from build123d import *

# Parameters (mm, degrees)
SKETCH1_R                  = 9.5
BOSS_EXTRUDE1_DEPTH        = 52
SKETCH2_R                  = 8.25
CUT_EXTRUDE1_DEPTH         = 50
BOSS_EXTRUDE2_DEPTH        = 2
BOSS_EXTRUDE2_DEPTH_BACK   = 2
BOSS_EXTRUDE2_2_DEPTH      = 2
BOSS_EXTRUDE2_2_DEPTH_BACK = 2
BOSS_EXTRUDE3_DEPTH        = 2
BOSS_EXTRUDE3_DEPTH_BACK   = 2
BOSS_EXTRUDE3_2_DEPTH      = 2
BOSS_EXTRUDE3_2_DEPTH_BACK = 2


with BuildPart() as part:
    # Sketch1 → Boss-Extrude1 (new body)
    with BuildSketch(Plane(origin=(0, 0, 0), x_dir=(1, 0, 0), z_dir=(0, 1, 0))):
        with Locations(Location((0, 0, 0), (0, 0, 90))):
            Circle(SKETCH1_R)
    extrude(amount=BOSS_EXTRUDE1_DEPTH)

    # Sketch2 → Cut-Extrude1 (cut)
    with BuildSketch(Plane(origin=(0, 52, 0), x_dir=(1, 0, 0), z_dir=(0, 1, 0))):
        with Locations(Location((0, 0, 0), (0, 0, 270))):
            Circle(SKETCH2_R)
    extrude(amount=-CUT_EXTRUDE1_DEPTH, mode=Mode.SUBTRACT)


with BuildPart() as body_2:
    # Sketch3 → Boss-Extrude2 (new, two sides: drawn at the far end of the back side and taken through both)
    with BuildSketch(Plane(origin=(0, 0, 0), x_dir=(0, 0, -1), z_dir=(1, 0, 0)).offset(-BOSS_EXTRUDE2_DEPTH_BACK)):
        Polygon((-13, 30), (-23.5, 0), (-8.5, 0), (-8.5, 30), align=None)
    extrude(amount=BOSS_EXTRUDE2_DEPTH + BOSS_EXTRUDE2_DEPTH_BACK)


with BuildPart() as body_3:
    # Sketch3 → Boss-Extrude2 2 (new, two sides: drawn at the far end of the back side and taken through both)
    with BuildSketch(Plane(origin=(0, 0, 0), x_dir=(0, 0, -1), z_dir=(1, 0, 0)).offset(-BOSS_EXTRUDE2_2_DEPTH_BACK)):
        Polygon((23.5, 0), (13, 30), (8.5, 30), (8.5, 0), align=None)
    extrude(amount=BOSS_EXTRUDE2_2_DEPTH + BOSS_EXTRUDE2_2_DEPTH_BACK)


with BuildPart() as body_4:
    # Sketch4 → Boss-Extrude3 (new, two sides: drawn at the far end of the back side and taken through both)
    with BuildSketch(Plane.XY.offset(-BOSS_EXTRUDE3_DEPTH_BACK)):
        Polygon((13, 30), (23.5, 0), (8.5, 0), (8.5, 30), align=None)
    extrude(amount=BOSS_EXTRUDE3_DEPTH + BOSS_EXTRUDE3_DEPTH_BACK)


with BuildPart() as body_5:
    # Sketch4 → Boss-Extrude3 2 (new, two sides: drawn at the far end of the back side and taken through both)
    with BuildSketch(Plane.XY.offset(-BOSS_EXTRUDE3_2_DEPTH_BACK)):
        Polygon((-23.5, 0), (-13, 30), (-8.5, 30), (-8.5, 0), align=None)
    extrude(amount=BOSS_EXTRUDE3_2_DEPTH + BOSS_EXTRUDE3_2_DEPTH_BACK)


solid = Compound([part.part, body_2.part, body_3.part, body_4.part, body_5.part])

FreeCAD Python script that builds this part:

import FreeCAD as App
import Part
import Sketcher
Q = App.Units.Quantity


def add_polygon(sketch, points):
    """Adds a closed chain of lines whose ends are joined by coincident constraints."""
    first, n = sketch.GeometryCount, len(points)
    for a, b in zip(points, points[1:] + points[:1]):
        sketch.addGeometry(Part.LineSegment(App.Vector(*a, 0), App.Vector(*b, 0)), False)
    for i in range(n):
        sketch.addConstraint(Sketcher.Constraint("Coincident", first + i, 2, first + (i + 1) % n, 1))

doc = App.newDocument("Part")
params = doc.addObject("Spreadsheet::Sheet", "Params")
for row, (alias, value) in enumerate([
    ("sketch1_diameter", "19 mm"),
    ("pad1_length", "52 mm"),
    ("sketch2_diameter", "16.5 mm"),
    ("pocket1_length", "50 mm"),
    ("sketch3_width", "30 mm"),
    ("sketch3_height", "15 mm"),
    ("sketch3_height2", "4.5 mm"),
    ("pad2_length", "2 mm"),
    ("pad2_length2", "2 mm"),
    ("sketch4_width", "30 mm"),
    ("sketch4_height", "15 mm"),
    ("sketch4_height2", "4.5 mm"),
    ("pad3_length", "2 mm"),
    ("pad3_length2", "2 mm"),
    ("sketch5_width", "15 mm"),
    ("sketch5_height", "30 mm"),
    ("sketch5_width2", "4.5 mm"),
    ("pad4_length", "2 mm"),
    ("pad4_length2", "2 mm"),
    ("sketch6_width", "15 mm"),
    ("sketch6_height", "30 mm"),
    ("sketch6_width2", "4.5 mm"),
    ("pad5_length", "2 mm"),
    ("pad5_length2", "2 mm"),
], start=1):
    params.set(f"A{row}", alias)
    params.set(f"B{row}", "=" + value)
    params.setAlias(f"B{row}", alias)

body = doc.addObject("PartDesign::Body", "Body")

sketch1 = body.newObject("Sketcher::SketchObject", "Sketch")
sketch1.AttachmentSupport = (doc.getObject("XZ_Plane"), [""])
sketch1.MapMode = "FlatFace"
sketch1.addGeometry(Part.Circle(App.Vector(0, 0, 0), App.Vector(0, 0, 1), 10), False)
sketch1.addConstraint([
    Sketcher.Constraint("Coincident", 0, 3, -1, 1),
    Sketcher.Constraint("Diameter", 0, Q("19 mm")),
])
sketch1.setExpression("Constraints[1]", "Params.sketch1_diameter")
pad1 = body.newObject("PartDesign::Pad", "Pad")
pad1.Profile = sketch1
pad1.setExpression("Length", "Params.pad1_length")
pad1.Reversed = True

sketch2 = body.newObject("Sketcher::SketchObject", "Sketch001")
sketch2.AttachmentSupport = (doc.getObject("XZ_Plane"), [""])
sketch2.MapMode = "FlatFace"
sketch2.AttachmentOffset = App.Placement(App.Vector(0, 0, -52), App.Rotation())
sketch2.addGeometry(Part.Circle(App.Vector(0, 0, 0), App.Vector(0, 0, 1), 8), False)
sketch2.addConstraint([
    Sketcher.Constraint("Coincident", 0, 3, -1, 1),
    Sketcher.Constraint("Diameter", 0, Q("16.5 mm")),
])
sketch2.setExpression("Constraints[1]", "Params.sketch2_diameter")
pocket1 = body.newObject("PartDesign::Pocket", "Pocket")
pocket1.Profile = sketch2
pocket1.setExpression("Length", "Params.pocket1_length")
pocket1.Reversed = True
body2 = doc.addObject("PartDesign::Body", "Body001")

sketch3 = body2.newObject("Sketcher::SketchObject", "Sketch002")
sketch3.AttachmentSupport = (doc.getObject("YZ_Plane001"), [""])
sketch3.MapMode = "FlatFace"
add_polygon(sketch3, [(30, 13), (0, 23.5), (0, 8.5), (30, 8.5)])
sketch3.addConstraint([
    Sketcher.Constraint("Vertical", 1),
    Sketcher.Constraint("Horizontal", 2),
    Sketcher.Constraint("Vertical", 3),
    Sketcher.Constraint("PointOnObject", 0, 2, -2),
    Sketcher.Constraint("DistanceX", 2, 1, 2, 2, Q("30 mm")),
    Sketcher.Constraint("DistanceY", 1, 2, 1, 1, Q("15 mm")),
    Sketcher.Constraint("DistanceY", 3, 1, 3, 2, Q("4.5 mm")),
    Sketcher.Constraint("DistanceY", -1, 1, 3, 2, Q("13 mm")),
])
sketch3.setExpression("Constraints[8]", "Params.sketch3_width")
sketch3.setExpression("Constraints[9]", "Params.sketch3_height")
sketch3.setExpression("Constraints[10]", "Params.sketch3_height2")
pad2 = body2.newObject("PartDesign::Pad", "Pad001")
pad2.Profile = sketch3
pad2.Type = "TwoLengths"
pad2.setExpression("Length", "Params.pad2_length")
pad2.setExpression("Length2", "Params.pad2_length2")
body3 = doc.addObject("PartDesign::Body", "Body002")

sketch4 = body3.newObject("Sketcher::SketchObject", "Sketch003")
sketch4.AttachmentSupport = (doc.getObject("YZ_Plane002"), [""])
sketch4.MapMode = "FlatFace"
add_polygon(sketch4, [(0, -23.5), (30, -13), (30, -8.5), (0, -8.5)])
sketch4.addConstraint([
    Sketcher.Constraint("Vertical", 1),
    Sketcher.Constraint("Horizontal", 2),
    Sketcher.Constraint("Vertical", 3),
    Sketcher.Constraint("PointOnObject", 2, 2, -2),
    Sketcher.Constraint("DistanceX", 2, 2, 2, 1, Q("30 mm")),
    Sketcher.Constraint("DistanceY", 3, 2, 3, 1, Q("15 mm")),
    Sketcher.Constraint("DistanceY", 1, 1, 1, 2, Q("4.5 mm")),
    Sketcher.Constraint("DistanceY", 0, 2, -1, 1, Q("13 mm")),
])
sketch4.setExpression("Constraints[8]", "Params.sketch4_width")
sketch4.setExpression("Constraints[9]", "Params.sketch4_height")
sketch4.setExpression("Constraints[10]", "Params.sketch4_height2")
pad3 = body3.newObject("PartDesign::Pad", "Pad002")
pad3.Profile = sketch4
pad3.Type = "TwoLengths"
pad3.setExpression("Length", "Params.pad3_length")
pad3.setExpression("Length2", "Params.pad3_length2")
body4 = doc.addObject("PartDesign::Body", "Body003")

sketch5 = body4.newObject("Sketcher::SketchObject", "Sketch004")
sketch5.AttachmentSupport = (doc.getObject("XY_Plane003"), [""])
sketch5.MapMode = "FlatFace"
add_polygon(sketch5, [(23.5, 0), (13, 30), (8.5, 30), (8.5, 0)])
sketch5.addConstraint([
    Sketcher.Constraint("Horizontal", 1),
    Sketcher.Constraint("Vertical", 2),
    Sketcher.Constraint("Horizontal", 3),
    Sketcher.Constraint("PointOnObject", 2, 2, -1),
    Sketcher.Constraint("DistanceX", 3, 1, 3, 2, Q("15 mm")),
    Sketcher.Constraint("DistanceY", 2, 2, 2, 1, Q("30 mm")),
    Sketcher.Constraint("DistanceX", 1, 2, 1, 1, Q("4.5 mm")),
    Sketcher.Constraint("DistanceX", -1, 1, 0, 2, Q("13 mm")),
])
sketch5.setExpression("Constraints[8]", "Params.sketch5_width")
sketch5.setExpression("Constraints[9]", "Params.sketch5_height")
sketch5.setExpression("Constraints[10]", "Params.sketch5_width2")
pad4 = body4.newObject("PartDesign::Pad", "Pad003")
pad4.Profile = sketch5
pad4.Type = "TwoLengths"
pad4.setExpression("Length", "Params.pad4_length")
pad4.setExpression("Length2", "Params.pad4_length2")
body5 = doc.addObject("PartDesign::Body", "Body004")

sketch6 = body5.newObject("Sketcher::SketchObject", "Sketch005")
sketch6.AttachmentSupport = (doc.getObject("XY_Plane004"), [""])
sketch6.MapMode = "FlatFace"
add_polygon(sketch6, [(-13, 30), (-23.5, 0), (-8.5, 0), (-8.5, 30)])
sketch6.addConstraint([
    Sketcher.Constraint("Horizontal", 1),
    Sketcher.Constraint("Vertical", 2),
    Sketcher.Constraint("Horizontal", 3),
    Sketcher.Constraint("PointOnObject", 0, 2, -1),
    Sketcher.Constraint("DistanceX", 1, 1, 1, 2, Q("15 mm")),
    Sketcher.Constraint("DistanceY", 2, 1, 2, 2, Q("30 mm")),
    Sketcher.Constraint("DistanceX", 3, 2, 3, 1, Q("4.5 mm")),
    Sketcher.Constraint("DistanceX", 3, 2, -1, 1, Q("13 mm")),
])
sketch6.setExpression("Constraints[8]", "Params.sketch6_width")
sketch6.setExpression("Constraints[9]", "Params.sketch6_height")
sketch6.setExpression("Constraints[10]", "Params.sketch6_width2")
pad5 = body5.newObject("PartDesign::Pad", "Pad004")
pad5.Profile = sketch6
pad5.Type = "TwoLengths"
pad5.setExpression("Length", "Params.pad5_length")
pad5.setExpression("Length2", "Params.pad5_length2")

doc.recompute()
